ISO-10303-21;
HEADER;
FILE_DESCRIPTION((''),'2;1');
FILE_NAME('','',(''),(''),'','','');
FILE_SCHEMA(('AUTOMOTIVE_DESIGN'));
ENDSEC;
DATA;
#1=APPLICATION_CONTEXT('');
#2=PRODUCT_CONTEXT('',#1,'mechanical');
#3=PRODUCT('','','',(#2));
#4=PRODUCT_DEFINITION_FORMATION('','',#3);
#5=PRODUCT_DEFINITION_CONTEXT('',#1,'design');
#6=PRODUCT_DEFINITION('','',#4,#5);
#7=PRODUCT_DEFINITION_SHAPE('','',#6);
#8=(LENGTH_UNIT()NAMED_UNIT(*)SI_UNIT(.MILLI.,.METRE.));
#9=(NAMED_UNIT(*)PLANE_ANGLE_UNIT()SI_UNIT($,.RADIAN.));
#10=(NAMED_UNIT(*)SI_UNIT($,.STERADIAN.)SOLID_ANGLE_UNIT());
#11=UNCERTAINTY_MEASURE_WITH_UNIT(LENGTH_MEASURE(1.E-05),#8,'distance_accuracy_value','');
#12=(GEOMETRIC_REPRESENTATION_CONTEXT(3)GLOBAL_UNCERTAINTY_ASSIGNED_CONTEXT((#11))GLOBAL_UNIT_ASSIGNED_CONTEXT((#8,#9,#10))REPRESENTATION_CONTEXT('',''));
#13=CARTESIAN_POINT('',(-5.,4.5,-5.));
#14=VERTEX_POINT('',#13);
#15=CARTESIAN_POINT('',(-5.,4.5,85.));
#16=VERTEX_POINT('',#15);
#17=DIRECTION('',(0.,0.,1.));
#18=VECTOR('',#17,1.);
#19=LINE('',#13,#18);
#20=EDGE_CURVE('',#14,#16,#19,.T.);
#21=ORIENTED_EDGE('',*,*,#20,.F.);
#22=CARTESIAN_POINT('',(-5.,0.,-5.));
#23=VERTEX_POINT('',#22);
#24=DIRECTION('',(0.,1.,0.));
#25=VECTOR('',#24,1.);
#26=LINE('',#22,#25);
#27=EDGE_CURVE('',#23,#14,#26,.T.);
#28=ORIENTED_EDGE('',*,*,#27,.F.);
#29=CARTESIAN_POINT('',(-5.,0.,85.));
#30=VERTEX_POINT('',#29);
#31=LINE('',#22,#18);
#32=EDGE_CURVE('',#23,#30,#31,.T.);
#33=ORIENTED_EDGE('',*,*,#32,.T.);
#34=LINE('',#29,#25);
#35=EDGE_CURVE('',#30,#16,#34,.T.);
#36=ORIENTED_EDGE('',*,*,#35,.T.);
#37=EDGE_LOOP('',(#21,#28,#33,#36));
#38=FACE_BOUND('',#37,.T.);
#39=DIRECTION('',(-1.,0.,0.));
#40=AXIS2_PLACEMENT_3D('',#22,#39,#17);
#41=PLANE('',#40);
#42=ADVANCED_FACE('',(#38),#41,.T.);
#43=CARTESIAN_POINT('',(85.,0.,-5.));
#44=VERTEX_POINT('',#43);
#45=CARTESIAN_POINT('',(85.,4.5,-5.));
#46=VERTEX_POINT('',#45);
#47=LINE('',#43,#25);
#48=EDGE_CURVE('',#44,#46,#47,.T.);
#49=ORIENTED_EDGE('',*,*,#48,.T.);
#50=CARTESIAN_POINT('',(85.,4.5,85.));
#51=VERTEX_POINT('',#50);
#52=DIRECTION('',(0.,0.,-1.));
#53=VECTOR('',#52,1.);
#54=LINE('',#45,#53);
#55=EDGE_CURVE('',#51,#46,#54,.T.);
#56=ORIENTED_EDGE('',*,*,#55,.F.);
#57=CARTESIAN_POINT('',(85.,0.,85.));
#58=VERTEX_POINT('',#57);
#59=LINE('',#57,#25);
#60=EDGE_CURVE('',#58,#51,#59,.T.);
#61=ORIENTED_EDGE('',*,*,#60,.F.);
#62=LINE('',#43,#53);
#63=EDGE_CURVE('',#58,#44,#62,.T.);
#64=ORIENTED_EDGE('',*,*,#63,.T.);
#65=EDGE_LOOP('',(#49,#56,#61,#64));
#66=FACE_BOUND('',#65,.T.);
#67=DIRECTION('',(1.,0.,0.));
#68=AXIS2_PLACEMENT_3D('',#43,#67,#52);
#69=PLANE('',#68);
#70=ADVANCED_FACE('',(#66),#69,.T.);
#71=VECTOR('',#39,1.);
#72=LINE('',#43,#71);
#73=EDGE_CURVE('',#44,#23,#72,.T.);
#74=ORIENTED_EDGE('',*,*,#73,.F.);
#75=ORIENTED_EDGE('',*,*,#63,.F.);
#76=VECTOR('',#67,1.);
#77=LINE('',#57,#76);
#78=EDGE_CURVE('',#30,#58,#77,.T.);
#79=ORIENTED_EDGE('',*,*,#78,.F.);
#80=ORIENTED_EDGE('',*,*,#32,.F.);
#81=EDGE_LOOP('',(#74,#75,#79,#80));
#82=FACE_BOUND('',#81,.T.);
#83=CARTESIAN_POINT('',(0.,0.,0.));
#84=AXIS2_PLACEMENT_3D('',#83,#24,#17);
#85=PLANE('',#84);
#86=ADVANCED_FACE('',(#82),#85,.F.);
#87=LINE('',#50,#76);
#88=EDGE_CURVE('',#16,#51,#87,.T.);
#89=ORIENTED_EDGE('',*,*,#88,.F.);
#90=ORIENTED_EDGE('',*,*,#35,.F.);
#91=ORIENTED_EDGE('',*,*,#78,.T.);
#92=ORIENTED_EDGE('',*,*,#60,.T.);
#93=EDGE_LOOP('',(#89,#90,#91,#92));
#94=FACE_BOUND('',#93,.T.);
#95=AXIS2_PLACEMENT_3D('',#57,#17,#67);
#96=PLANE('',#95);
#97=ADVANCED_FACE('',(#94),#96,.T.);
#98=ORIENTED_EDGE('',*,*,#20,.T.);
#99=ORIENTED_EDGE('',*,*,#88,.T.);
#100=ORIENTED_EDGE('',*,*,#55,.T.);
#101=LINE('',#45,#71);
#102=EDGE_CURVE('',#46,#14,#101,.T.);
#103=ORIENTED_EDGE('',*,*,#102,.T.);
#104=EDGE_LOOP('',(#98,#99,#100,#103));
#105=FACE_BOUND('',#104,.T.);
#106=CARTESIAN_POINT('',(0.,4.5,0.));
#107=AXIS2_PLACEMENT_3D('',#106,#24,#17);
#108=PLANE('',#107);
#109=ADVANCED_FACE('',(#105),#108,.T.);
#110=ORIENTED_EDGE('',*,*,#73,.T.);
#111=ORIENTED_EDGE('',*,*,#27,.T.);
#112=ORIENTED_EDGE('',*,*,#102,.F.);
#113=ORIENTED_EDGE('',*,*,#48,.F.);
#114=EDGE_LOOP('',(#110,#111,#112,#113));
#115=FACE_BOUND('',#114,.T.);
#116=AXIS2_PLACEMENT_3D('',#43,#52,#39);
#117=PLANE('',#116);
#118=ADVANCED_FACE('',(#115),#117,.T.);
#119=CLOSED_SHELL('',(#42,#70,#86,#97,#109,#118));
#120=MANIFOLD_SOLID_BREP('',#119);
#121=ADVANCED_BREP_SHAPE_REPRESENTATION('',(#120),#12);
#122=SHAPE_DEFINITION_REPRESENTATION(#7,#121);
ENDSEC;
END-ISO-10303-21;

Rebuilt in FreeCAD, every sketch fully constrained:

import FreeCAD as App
import Part
import Sketcher
from FreeCAD import Vector
Q = App.Units.Quantity

doc = App.newDocument("Part")
params = doc.addObject("Spreadsheet::Sheet", "Params")
for row, (alias, value) in enumerate([
    ("sketch1_width", "100 mm"),
    ("pad1_length", "4.5 mm"),
    ("sketch2_width", "90 mm"),
], start=1):
    params.set(f"A{row}", alias)
    params.set(f"B{row}", "=" + value)
    params.setAlias(f"B{row}", alias)

body = doc.addObject("PartDesign::Body", "Body")

sketch1 = body.newObject("Sketcher::SketchObject", "Sketch")
sketch1.AttachmentSupport = (doc.getObject("XZ_Plane"), [""])
sketch1.MapMode = "FlatFace"
sketch1.addGeometry(Part.LineSegment(Vector(-10, -10, 0), Vector(-10, 90, 0)), False)
sketch1.addGeometry(Part.LineSegment(Vector(-10, 90, 0), Vector(90, 90, 0)), False)
sketch1.addGeometry(Part.LineSegment(Vector(90, 90, 0), Vector(90, -10, 0)), False)
sketch1.addGeometry(Part.LineSegment(Vector(90, -10, 0), Vector(-10, -10, 0)), False)
sketch1.addConstraint(Sketcher.Constraint("Coincident", 0, 2, 1, 1))
sketch1.addConstraint(Sketcher.Constraint("Coincident", 1, 2, 2, 1))
sketch1.addConstraint(Sketcher.Constraint("Coincident", 2, 2, 3, 1))
sketch1.addConstraint(Sketcher.Constraint("Coincident", 3, 2, 0, 1))
sketch1.addConstraint(Sketcher.Constraint("Vertical", 0))
sketch1.addConstraint(Sketcher.Constraint("Horizontal", 1))
sketch1.addConstraint(Sketcher.Constraint("Vertical", 2))
sketch1.addConstraint(Sketcher.Constraint("Horizontal", 3))
sketch1.addConstraint(Sketcher.Constraint("Equal", 3, 0))
sketch1.addConstraint(Sketcher.Constraint("DistanceX", 1, 1, 1, 2, Q("100 mm")))
sketch1.addConstraint(Sketcher.Constraint("DistanceX", 0, 2, -1, 1, Q("10 mm")))
sketch1.addConstraint(Sketcher.Constraint("DistanceY", -1, 1, 0, 2, Q("90 mm")))
sketch1.setExpression("Constraints[9]", "Params.sketch1_width")
pad1 = body.newObject("PartDesign::Pad", "Pad")
pad1.Profile = sketch1
pad1.setExpression("Length", "Params.pad1_length")
pad1.Reversed = True

sketch2 = body.newObject("Sketcher::SketchObject", "Sketch001")
sketch2.AttachmentSupport = (doc.getObject("XZ_Plane"), [""])
sketch2.MapMode = "FlatFace"
sketch2.AttachmentOffset = App.Placement(Vector(0, 0, -4.5), App.Rotation())
sketch2.addGeometry(Part.LineSegment(Vector(-25, -25, 0), Vector(-25, 105, 0)), False)
sketch2.addGeometry(Part.LineSegment(Vector(-25, 105, 0), Vector(105, 105, 0)), False)
sketch2.addGeometry(Part.LineSegment(Vector(105, 105, 0), Vector(105, -25, 0)), False)
sketch2.addGeometry(Part.LineSegment(Vector(105, -25, 0), Vector(-25, -25, 0)), False)
sketch2.addGeometry(Part.LineSegment(Vector(85, 85, 0), Vector(-5, 85, 0)), False)
sketch2.addGeometry(Part.LineSegment(Vector(-5, 85, 0), Vector(-5, -5, 0)), False)
sketch2.addGeometry(Part.LineSegment(Vector(-5, -5, 0), Vector(85, -5, 0)), False)
sketch2.addGeometry(Part.LineSegment(Vector(85, -5, 0), Vector(85, 85, 0)), False)
sketch2.addConstraint(Sketcher.Constraint("Coincident", 0, 2, 1, 1))
sketch2.addConstraint(Sketcher.Constraint("Coincident", 1, 2, 2, 1))
sketch2.addConstraint(Sketcher.Constraint("Coincident", 2, 2, 3, 1))
sketch2.addConstraint(Sketcher.Constraint("Coincident", 3, 2, 0, 1))
sketch2.addConstraint(Sketcher.Constraint("Coincident", 4, 2, 5, 1))
sketch2.addConstraint(Sketcher.Constraint("Coincident", 5, 2, 6, 1))
sketch2.addConstraint(Sketcher.Constraint("Coincident", 6, 2, 7, 1))
sketch2.addConstraint(Sketcher.Constraint("Coincident", 7, 2, 4, 1))
sketch2.addConstraint(Sketcher.Constraint("Vertical", 0))
sketch2.addConstraint(Sketcher.Constraint("Horizontal", 1))
sketch2.addConstraint(Sketcher.Constraint("Vertical", 2))
sketch2.addConstraint(Sketcher.Constraint("Horizontal", 3))
sketch2.addConstraint(Sketcher.Constraint("Horizontal", 4))
sketch2.addConstraint(Sketcher.Constraint("Vertical", 5))
sketch2.addConstraint(Sketcher.Constraint("Horizontal", 6))
sketch2.addConstraint(Sketcher.Constraint("Vertical", 7))
sketch2.addConstraint(Sketcher.Constraint("Equal", 3, 0))
sketch2.addConstraint(Sketcher.Constraint("Equal", 6, 5))
sketch2.addConstraint(Sketcher.Constraint("DistanceX", 4, 2, 4, 1, Q("90 mm")))
sketch2.addConstraint(Sketcher.Constraint("DistanceX", 4, 2, -1, 1, Q("5 mm")))
sketch2.addConstraint(Sketcher.Constraint("DistanceY", -1, 1, 4, 2, Q("85 mm")))
sketch2.addConstraint(Sketcher.Constraint("DistanceX", 1, 1, 1, 2, Q("130.298 mm")))
sketch2.addConstraint(Sketcher.Constraint("DistanceX", 0, 2, -1, 1, Q("25.149 mm")))
sketch2.addConstraint(Sketcher.Constraint("DistanceY", -1, 1, 0, 2, Q("105.149 mm")))
sketch2.setExpression("Constraints[18]", "Params.sketch2_width")
pocket1 = body.newObject("PartDesign::Pocket", "Pocket")
pocket1.Profile = sketch2
pocket1.Type = "ThroughAll"
pocket1.Reversed = True

doc.recompute()
